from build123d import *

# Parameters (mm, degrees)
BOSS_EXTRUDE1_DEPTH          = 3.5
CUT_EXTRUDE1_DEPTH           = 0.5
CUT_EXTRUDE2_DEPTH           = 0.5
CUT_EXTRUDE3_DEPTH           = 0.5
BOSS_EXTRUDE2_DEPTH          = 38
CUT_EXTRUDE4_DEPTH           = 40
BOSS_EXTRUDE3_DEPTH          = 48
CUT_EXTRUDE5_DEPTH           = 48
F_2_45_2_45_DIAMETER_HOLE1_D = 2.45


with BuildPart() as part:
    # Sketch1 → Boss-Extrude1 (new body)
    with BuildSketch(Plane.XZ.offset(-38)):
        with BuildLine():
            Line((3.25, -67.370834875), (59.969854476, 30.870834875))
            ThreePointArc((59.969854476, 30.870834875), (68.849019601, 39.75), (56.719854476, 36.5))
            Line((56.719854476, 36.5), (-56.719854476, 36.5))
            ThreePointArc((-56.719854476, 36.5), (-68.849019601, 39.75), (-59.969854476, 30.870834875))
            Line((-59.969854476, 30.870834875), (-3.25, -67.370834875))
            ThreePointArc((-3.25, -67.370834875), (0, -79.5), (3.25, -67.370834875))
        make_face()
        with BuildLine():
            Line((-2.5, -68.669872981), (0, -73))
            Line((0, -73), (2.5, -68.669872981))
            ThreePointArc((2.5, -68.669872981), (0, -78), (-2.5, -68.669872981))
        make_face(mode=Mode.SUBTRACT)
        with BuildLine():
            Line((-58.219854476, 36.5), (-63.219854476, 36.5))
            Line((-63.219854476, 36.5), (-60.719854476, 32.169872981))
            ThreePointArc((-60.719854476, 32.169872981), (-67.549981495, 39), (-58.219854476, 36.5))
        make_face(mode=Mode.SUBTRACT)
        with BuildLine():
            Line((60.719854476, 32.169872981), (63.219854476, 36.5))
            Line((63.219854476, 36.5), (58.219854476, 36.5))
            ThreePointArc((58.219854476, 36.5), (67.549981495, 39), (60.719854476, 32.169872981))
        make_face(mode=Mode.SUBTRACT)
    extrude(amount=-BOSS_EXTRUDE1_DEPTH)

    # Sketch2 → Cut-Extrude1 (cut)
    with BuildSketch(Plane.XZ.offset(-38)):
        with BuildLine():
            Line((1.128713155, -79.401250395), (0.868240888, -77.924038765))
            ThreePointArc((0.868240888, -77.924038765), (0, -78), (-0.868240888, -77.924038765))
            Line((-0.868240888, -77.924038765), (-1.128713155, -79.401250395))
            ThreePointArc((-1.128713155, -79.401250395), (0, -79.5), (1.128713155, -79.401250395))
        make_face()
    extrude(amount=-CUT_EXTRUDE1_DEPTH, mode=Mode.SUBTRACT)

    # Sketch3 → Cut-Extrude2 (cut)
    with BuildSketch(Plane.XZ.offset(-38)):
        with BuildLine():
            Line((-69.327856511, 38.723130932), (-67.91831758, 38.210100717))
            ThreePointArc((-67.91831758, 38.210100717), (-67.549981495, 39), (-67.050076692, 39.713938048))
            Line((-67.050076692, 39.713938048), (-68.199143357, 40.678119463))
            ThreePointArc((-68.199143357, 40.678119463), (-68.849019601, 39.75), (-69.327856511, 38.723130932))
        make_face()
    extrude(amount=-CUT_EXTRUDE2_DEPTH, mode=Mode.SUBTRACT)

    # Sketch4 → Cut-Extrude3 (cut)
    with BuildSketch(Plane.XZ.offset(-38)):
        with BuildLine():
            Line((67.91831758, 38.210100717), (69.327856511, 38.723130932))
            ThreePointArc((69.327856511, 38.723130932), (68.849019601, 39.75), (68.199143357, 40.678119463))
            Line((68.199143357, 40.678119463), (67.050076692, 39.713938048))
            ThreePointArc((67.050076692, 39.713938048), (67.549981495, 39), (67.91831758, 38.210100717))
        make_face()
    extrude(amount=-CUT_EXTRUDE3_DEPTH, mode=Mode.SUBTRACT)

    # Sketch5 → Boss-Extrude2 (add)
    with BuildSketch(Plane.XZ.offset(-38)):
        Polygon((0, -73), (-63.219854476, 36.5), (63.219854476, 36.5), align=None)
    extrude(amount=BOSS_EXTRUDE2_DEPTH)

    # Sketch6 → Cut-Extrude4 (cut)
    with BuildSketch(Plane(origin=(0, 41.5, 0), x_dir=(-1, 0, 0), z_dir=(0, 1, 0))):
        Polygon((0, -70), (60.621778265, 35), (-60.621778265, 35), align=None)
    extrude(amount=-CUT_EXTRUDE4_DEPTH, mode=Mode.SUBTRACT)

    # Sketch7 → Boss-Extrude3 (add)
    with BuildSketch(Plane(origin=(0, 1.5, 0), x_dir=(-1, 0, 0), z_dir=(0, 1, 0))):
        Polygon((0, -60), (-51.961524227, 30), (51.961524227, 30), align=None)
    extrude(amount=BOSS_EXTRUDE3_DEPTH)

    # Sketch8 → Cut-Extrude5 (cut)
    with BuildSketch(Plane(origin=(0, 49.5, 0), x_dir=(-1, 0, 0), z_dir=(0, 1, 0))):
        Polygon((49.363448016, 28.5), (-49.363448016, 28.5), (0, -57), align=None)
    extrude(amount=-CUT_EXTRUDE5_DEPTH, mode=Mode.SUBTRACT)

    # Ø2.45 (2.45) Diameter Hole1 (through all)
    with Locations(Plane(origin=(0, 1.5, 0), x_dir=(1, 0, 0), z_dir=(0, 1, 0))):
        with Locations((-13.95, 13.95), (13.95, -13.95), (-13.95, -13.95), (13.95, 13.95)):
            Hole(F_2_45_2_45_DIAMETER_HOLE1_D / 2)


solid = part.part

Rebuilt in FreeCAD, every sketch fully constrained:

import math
import FreeCAD as App
import Part
import Sketcher

V = App.Vector
Q = App.Units.Quantity


def add_polygon(sketch, points):
    """Adds a closed chain of lines whose ends are joined by coincident constraints."""
    first, n = sketch.GeometryCount, len(points)
    for a, b in zip(points, points[1:] + points[:1]):
        sketch.addGeometry(Part.LineSegment(App.Vector(*a, 0), App.Vector(*b, 0)), False)
    for i in range(n):
        sketch.addConstraint(Sketcher.Constraint("Coincident", first + i, 2, first + (i + 1) % n, 1))

doc = App.newDocument("Part")
params = doc.addObject("Spreadsheet::Sheet", "Params")
for row, (alias, value) in enumerate([
    ("sketch1_radius", "5 mm"),
    ("sketch1_radius2", "6.5 mm"),
    ("pad1_length", "3.5 mm"),
    ("sketch2_radius", "5 mm"),
    ("sketch2_radius2", "6.5 mm"),
    ("pocket1_length", "0.5 mm"),
    ("sketch3_radius", "5 mm"),
    ("sketch3_radius2", "6.5 mm"),
    ("pocket2_length", "0.5 mm"),
    ("sketch4_radius", "5 mm"),
    ("sketch4_radius2", "6.5 mm"),
    ("pocket3_length", "0.5 mm"),
    ("pad2_length", "38 mm"),
    ("pocket4_length", "40 mm"),
    ("pad3_length", "48 mm"),
    ("pocket5_length", "48 mm"),
    ("sketch9_diameter", "2.45 mm"),
    ("hole_diameter", "2.45 mm"),
], start=1):
    params.set(f"A{row}", alias)
    params.set(f"B{row}", "=" + value)
    params.setAlias(f"B{row}", alias)

body = doc.addObject("PartDesign::Body", "Body")

sketch1 = body.newObject("Sketcher::SketchObject", "Sketch")
sketch1.AttachmentSupport = (doc.getObject("XZ_Plane"), [""])
sketch1.MapMode = "FlatFace"
sketch1.AttachmentOffset = App.Placement(V(0, 0, -38), App.Rotation())
sketch1.addGeometry([
    Part.LineSegment(V(3, -67, 0), V(60, 31, 0)),
    Part.ArcOfCircle(Part.Circle(V(63, 36, 0), V(0, 0, 1), 6), math.radians(-120), math.radians(180)),
    Part.LineSegment(V(57, 36, 0), V(-57, 36, 0)),
    Part.ArcOfCircle(Part.Circle(V(-63, 36, 0), V(0, 0, 1), 6), math.radians(0), math.radians(300)),
    Part.LineSegment(V(-60, 31, 0), V(-3, -67, 0)),
    Part.ArcOfCircle(Part.Circle(V(0, -73, 0), V(0, 0, 1), 6), math.radians(120), math.radians(420)),
    Part.ArcOfCircle(Part.Circle(V(0, -73, 0), V(0, 0, 1), 5), math.radians(120), math.radians(420)),
    Part.LineSegment(V(-2, -69, 0), V(0, -73, 0)),
    Part.LineSegment(V(0, -73, 0), V(2, -69, 0)),
    Part.ArcOfCircle(Part.Circle(V(-63, 36, 0), V(0, 0, 1), 5), math.radians(0), math.radians(300)),
    Part.LineSegment(V(-58, 36, 0), V(-63, 36, 0)),
    Part.LineSegment(V(-63, 36, 0), V(-61, 32, 0)),
    Part.ArcOfCircle(Part.Circle(V(63, 36, 0), V(0, 0, 1), 5), math.radians(-120), math.radians(180)),
    Part.LineSegment(V(61, 32, 0), V(63, 36, 0)),
    Part.LineSegment(V(63, 36, 0), V(58, 36, 0)),
], False)
sketch1.addConstraint([
    Sketcher.Constraint("Coincident", 0, 2, 1, 1),
    Sketcher.Constraint("Coincident", 1, 2, 2, 1),
    Sketcher.Constraint("Coincident", 2, 2, 3, 1),
    Sketcher.Constraint("Coincident", 3, 2, 4, 1),
    Sketcher.Constraint("Coincident", 4, 2, 5, 1),
    Sketcher.Constraint("Coincident", 5, 2, 0, 1),
    Sketcher.Constraint("Coincident", 6, 1, 7, 1),
    Sketcher.Constraint("Coincident", 7, 2, 8, 1),
    Sketcher.Constraint("Coincident", 8, 2, 6, 2),
    Sketcher.Constraint("Coincident", 9, 1, 10, 1),
    Sketcher.Constraint("Coincident", 10, 2, 11, 1),
    Sketcher.Constraint("Coincident", 11, 2, 9, 2),
    Sketcher.Constraint("Coincident", 12, 1, 13, 1),
    Sketcher.Constraint("Coincident", 13, 2, 14, 1),
    Sketcher.Constraint("Coincident", 14, 2, 12, 2),
    Sketcher.Constraint("Horizontal", 2),
    Sketcher.Constraint("Horizontal", 10),
    Sketcher.Constraint("Horizontal", 14),
    Sketcher.Constraint("Coincident", 6, 3, 5, 3),
    Sketcher.Constraint("Coincident", 9, 3, 3, 3),
    Sketcher.Constraint("Coincident", 12, 3, 1, 3),
    Sketcher.Constraint("Coincident", 7, 2, 5, 3),
    Sketcher.Constraint("Coincident", 10, 2, 3, 3),
    Sketcher.Constraint("Coincident", 13, 2, 1, 3),
    Sketcher.Constraint("Equal", 1, 3),
    Sketcher.Constraint("Equal", 3, 5),
    Sketcher.Constraint("Equal", 6, 9),
    Sketcher.Constraint("Equal", 9, 12),
    Sketcher.Constraint("Symmetric", 1, 3, 3, 3, -2),
    Sketcher.Constraint("Symmetric", 4, 2, 5, 2, -2),
    Sketcher.Constraint("Parallel", 4, 7),
    Sketcher.Constraint("Parallel", 0, 8),
    Sketcher.Constraint("Parallel", 7, 11),
    Sketcher.Constraint("Parallel", 8, 13),
    Sketcher.Constraint("Horizontal", 12, 3, 1, 2),
    Sketcher.Constraint("Horizontal", 0, 2, 3, 2),
    Sketcher.Constraint("Radius", 6, 5.0),
    Sketcher.Constraint("Radius", 1, 6.5),
    Sketcher.Constraint("Angle", 0, Q("60 deg")),
    Sketcher.Constraint("DistanceY", 5, 3, -1, 1, 73.0),
    Sketcher.Constraint("DistanceY", -1, 1, 1, 3, 36.5),
    Sketcher.Constraint("DistanceX", 4, 2, 5, 2, 6.5),
    Sketcher.Constraint("DistanceX", 0, 2, 1, 3, 3.25),
])
sketch1.setExpression("Constraints[36]", "Params.sketch1_radius")
sketch1.setExpression("Constraints[37]", "Params.sketch1_radius2")
pad1 = body.newObject("PartDesign::Pad", "Pad")
pad1.Profile = sketch1
pad1.setExpression("Length", "Params.pad1_length")
pad1.Reversed = True

sketch2 = body.newObject("Sketcher::SketchObject", "Sketch001")
sketch2.AttachmentSupport = (doc.getObject("XZ_Plane"), [""])
sketch2.MapMode = "FlatFace"
sketch2.AttachmentOffset = App.Placement(V(0, 0, -38), App.Rotation())
sketch2.addGeometry([
    Part.LineSegment(V(1.1, -79.4, 0), V(0.9, -77.9, 0)),
    Part.ArcOfCircle(Part.Circle(V(0, -73, 0), V(0, 0, 1), 5), math.radians(-100), math.radians(-80)),
    Part.LineSegment(V(-0.9, -77.9, 0), V(-1.1, -79.4, 0)),
    Part.ArcOfCircle(Part.Circle(V(0, -73, 0), V(0, 0, 1), 6.5), math.radians(-100), math.radians(-80)),
], False)
sketch2.addConstraint([
    Sketcher.Constraint("Coincident", 0, 2, 1, 2),
    Sketcher.Constraint("Coincident", 1, 1, 2, 1),
    Sketcher.Constraint("Coincident", 2, 2, 3, 1),
    Sketcher.Constraint("Coincident", 3, 2, 0, 1),
    Sketcher.Constraint("Coincident", 3, 3, 1, 3),
    Sketcher.Constraint("Symmetric", 0, 2, 1, 1, -2),
    Sketcher.Constraint("Horizontal", 2, 2, 3, 2),
    Sketcher.Constraint("Radius", 1, 5.0),
    Sketcher.Constraint("Radius", 3, 6.5),
    Sketcher.Constraint("Angle", 0, Q("100 deg")),
    Sketcher.Constraint("DistanceY", 1, 3, -1, 1, 73.0),
    Sketcher.Constraint("DistanceX", -1, 1, 0, 2, 0.868241),
])
sketch2.setExpression("Constraints[7]", "Params.sketch2_radius")
sketch2.setExpression("Constraints[8]", "Params.sketch2_radius2")
pocket1 = body.newObject("PartDesign::Pocket", "Pocket")
pocket1.Profile = sketch2
pocket1.setExpression("Length", "Params.pocket1_length")

sketch3 = body.newObject("Sketcher::SketchObject", "Sketch002")
sketch3.AttachmentSupport = (doc.getObject("XZ_Plane"), [""])
sketch3.MapMode = "FlatFace"
sketch3.AttachmentOffset = App.Placement(V(0, 0, -38), App.Rotation())
sketch3.addGeometry([
    Part.LineSegment(V(-69.3, 38.7, 0), V(-67.9, 38.2, 0)),
    Part.ArcOfCircle(Part.Circle(V(-63.2, 36.5, 0), V(0, 0, 1), 5), math.radians(140), math.radians(160)),
    Part.LineSegment(V(-67.1, 39.7, 0), V(-68.2, 40.7, 0)),
    Part.ArcOfCircle(Part.Circle(V(-63.2, 36.5, 0), V(0, 0, 1), 6.5), math.radians(140), math.radians(160)),
], False)
sketch3.addConstraint([
    Sketcher.Constraint("Coincident", 0, 2, 1, 2),
    Sketcher.Constraint("Coincident", 1, 1, 2, 1),
    Sketcher.Constraint("Coincident", 2, 2, 3, 1),
    Sketcher.Constraint("Coincident", 3, 2, 0, 1),
    Sketcher.Constraint("Coincident", 3, 3, 1, 3),
    Sketcher.Constraint("Radius", 1, 5.0),
    Sketcher.Constraint("Radius", 3, 6.5),
    Sketcher.Constraint("Angle", 0, Q("-20 deg")),
    Sketcher.Constraint("Angle", 2, Q("140 deg")),
    Sketcher.Constraint("DistanceY", -1, 1, 1, 3, 36.5),
    Sketcher.Constraint("DistanceY", -1, 1, 0, 2, 38.210101),
    Sketcher.Constraint("DistanceY", -1, 1, 1, 1, 39.713938),
    Sketcher.Constraint("DistanceX", 1, 3, -1, 1, 63.219854),
])
sketch3.setExpression("Constraints[5]", "Params.sketch3_radius")
sketch3.setExpression("Constraints[6]", "Params.sketch3_radius2")
pocket2 = body.newObject("PartDesign::Pocket", "Pocket001")
pocket2.Profile = sketch3
pocket2.setExpression("Length", "Params.pocket2_length")

sketch4 = body.newObject("Sketcher::SketchObject", "Sketch003")
sketch4.AttachmentSupport = (doc.getObject("XZ_Plane"), [""])
sketch4.MapMode = "FlatFace"
sketch4.AttachmentOffset = App.Placement(V(0, 0, -38), App.Rotation())
sketch4.addGeometry([
    Part.LineSegment(V(67.9, 38.2, 0), V(69.3, 38.7, 0)),
    Part.ArcOfCircle(Part.Circle(V(63.2, 36.5, 0), V(0, 0, 1), 6.5), math.radians(20), math.radians(40)),
    Part.LineSegment(V(68.2, 40.7, 0), V(67.1, 39.7, 0)),
    Part.ArcOfCircle(Part.Circle(V(63.2, 36.5, 0), V(0, 0, 1), 5), math.radians(20), math.radians(40)),
], False)
sketch4.addConstraint([
    Sketcher.Constraint("Coincident", 0, 2, 1, 1),
    Sketcher.Constraint("Coincident", 1, 2, 2, 1),
    Sketcher.Constraint("Coincident", 2, 2, 3, 2),
    Sketcher.Constraint("Coincident", 3, 1, 0, 1),
    Sketcher.Constraint("Coincident", 3, 3, 1, 3),
    Sketcher.Constraint("Radius", 3, 5.0),
    Sketcher.Constraint("Radius", 1, 6.5),
    Sketcher.Constraint("Angle", 0, Q("20 deg")),
    Sketcher.Constraint("Angle", 2, Q("-140 deg")),
    Sketcher.Constraint("DistanceY", -1, 1, 1, 3, 36.5),
    Sketcher.Constraint("DistanceY", -1, 1, 3, 1, 38.210101),
    Sketcher.Constraint("DistanceY", -1, 1, 1, 2, 40.678119),
    Sketcher.Constraint("DistanceX", -1, 1, 1, 3, 63.219854),
])
sketch4.setExpression("Constraints[5]", "Params.sketch4_radius")
sketch4.setExpression("Constraints[6]", "Params.sketch4_radius2")
pocket3 = body.newObject("PartDesign::Pocket", "Pocket002")
pocket3.Profile = sketch4
pocket3.setExpression("Length", "Params.pocket3_length")

sketch5 = body.newObject("Sketcher::SketchObject", "Sketch004")
sketch5.AttachmentSupport = (doc.getObject("XZ_Plane"), [""])
sketch5.MapMode = "FlatFace"
sketch5.AttachmentOffset = App.Placement(V(0, 0, -38), App.Rotation())
add_polygon(sketch5, [(-63, 36), (0, -73), (63, 36)])
sketch5.addConstraint([
    Sketcher.Constraint("Horizontal", 2),
    Sketcher.Constraint("PointOnObject", 0, 2, -2),
    Sketcher.Constraint("Equal", 0, 1),
    Sketcher.Constraint("Angle", 0, Q("-60 deg")),
    Sketcher.Constraint("DistanceY", 0, 2, -1, 1, 73.0),
    Sketcher.Constraint("DistanceY", -1, 1, 1, 2, 36.5),
])
pad2 = body.newObject("PartDesign::Pad", "Pad001")
pad2.Profile = sketch5
pad2.setExpression("Length", "Params.pad2_length")

sketch6 = body.newObject("Sketcher::SketchObject", "Sketch005")
sketch6.AttachmentSupport = (doc.getObject("XZ_Plane"), [""])
sketch6.MapMode = "FlatFace"
sketch6.AttachmentOffset = App.Placement(V(0, 0, -41.5), App.Rotation())
add_polygon(sketch6, [(0, -70), (-61, 35), (61, 35)])
sketch6.addConstraint([
    Sketcher.Constraint("Horizontal", 1),
    Sketcher.Constraint("PointOnObject", 2, 2, -2),
    Sketcher.Constraint("Equal", 0, 2),
    Sketcher.Constraint("Angle", 0, Q("120 deg")),
    Sketcher.Constraint("DistanceY", -1, 1, 0, 2, 35.0),
    Sketcher.Constraint("DistanceY", 2, 2, -1, 1, 70.0),
])
pocket4 = body.newObject("PartDesign::Pocket", "Pocket003")
pocket4.Profile = sketch6
pocket4.setExpression("Length", "Params.pocket4_length")
pocket4.Reversed = True

sketch7 = body.newObject("Sketcher::SketchObject", "Sketch006")
sketch7.AttachmentSupport = (doc.getObject("XZ_Plane"), [""])
sketch7.MapMode = "FlatFace"
sketch7.AttachmentOffset = App.Placement(V(0, 0, -1.5), App.Rotation())
add_polygon(sketch7, [(52, 30), (0, -60), (-52, 30)])
sketch7.addConstraint([
    Sketcher.Constraint("Horizontal", 2),
    Sketcher.Constraint("PointOnObject", 0, 2, -2),
    Sketcher.Constraint("Equal", 0, 1),
    Sketcher.Constraint("Angle", 0, Q("-120 deg")),
    Sketcher.Constraint("DistanceY", 0, 2, -1, 1, 60.0),
    Sketcher.Constraint("DistanceY", -1, 1, 1, 2, 30.0),
])
pad3 = body.newObject("PartDesign::Pad", "Pad002")
pad3.Profile = sketch7
pad3.setExpression("Length", "Params.pad3_length")
pad3.Reversed = True

sketch8 = body.newObject("Sketcher::SketchObject", "Sketch007")
sketch8.AttachmentSupport = (doc.getObject("XZ_Plane"), [""])
sketch8.MapMode = "FlatFace"
sketch8.AttachmentOffset = App.Placement(V(0, 0, -49.5), App.Rotation())
add_polygon(sketch8, [(-49, 28), (49, 28), (0, -57)])
sketch8.addConstraint([
    Sketcher.Constraint("Horizontal", 0),
    Sketcher.Constraint("PointOnObject", 1, 2, -2),
    Sketcher.Constraint("Equal", 1, 2),
    Sketcher.Constraint("Angle", 1, Q("-120 deg")),
    Sketcher.Constraint("DistanceY", 1, 2, -1, 1, 57.0),
    Sketcher.Constraint("DistanceY", -1, 1, 0, 2, 28.5),
])
pocket5 = body.newObject("PartDesign::Pocket", "Pocket004")
pocket5.Profile = sketch8
pocket5.setExpression("Length", "Params.pocket5_length")
pocket5.Reversed = True

sketch9 = body.newObject("Sketcher::SketchObject", "Sketch008")
sketch9.AttachmentSupport = (doc.getObject("XZ_Plane"), [""])
sketch9.MapMode = "FlatFace"
sketch9.AttachmentOffset = App.Placement(V(0, 0, -1.5), App.Rotation())
sketch9.addGeometry([
    Part.Circle(V(-13.9, -13.9, 0), V(0, 0, 1), 1.2),
    Part.Circle(V(13.9, 13.9, 0), V(0, 0, 1), 1.2),
    Part.Circle(V(-13.9, 13.9, 0), V(0, 0, 1), 1.2),
    Part.Circle(V(13.9, -13.9, 0), V(0, 0, 1), 1.2),
], False)
sketch9.addConstraint([
    Sketcher.Constraint("Equal", 0, 1),
    Sketcher.Constraint("Equal", 1, 2),
    Sketcher.Constraint("Equal", 2, 3),
    Sketcher.Constraint("Symmetric", 0, 3, 1, 3, -1, 1),
    Sketcher.Constraint("Symmetric", 2, 3, 3, 3, -1, 1),
    Sketcher.Constraint("Symmetric", 1, 3, 2, 3, -2),
    Sketcher.Constraint("Diameter", 0, 2.45),
    Sketcher.Constraint("DistanceX", 0, 3, 1, 3, 27.9),
    Sketcher.Constraint("DistanceY", 0, 3, 1, 3, 27.9),
])
sketch9.setExpression("Constraints[6]", "Params.sketch9_diameter")
doc.recompute()
hole = body.newObject("PartDesign::Hole", "Hole")
hole.Profile = sketch9
hole.ThreadType = "None"
hole.setExpression("Diameter", "Params.hole_diameter")
hole.DepthType = "ThroughAll"
hole.Reversed = True

doc.recompute()
